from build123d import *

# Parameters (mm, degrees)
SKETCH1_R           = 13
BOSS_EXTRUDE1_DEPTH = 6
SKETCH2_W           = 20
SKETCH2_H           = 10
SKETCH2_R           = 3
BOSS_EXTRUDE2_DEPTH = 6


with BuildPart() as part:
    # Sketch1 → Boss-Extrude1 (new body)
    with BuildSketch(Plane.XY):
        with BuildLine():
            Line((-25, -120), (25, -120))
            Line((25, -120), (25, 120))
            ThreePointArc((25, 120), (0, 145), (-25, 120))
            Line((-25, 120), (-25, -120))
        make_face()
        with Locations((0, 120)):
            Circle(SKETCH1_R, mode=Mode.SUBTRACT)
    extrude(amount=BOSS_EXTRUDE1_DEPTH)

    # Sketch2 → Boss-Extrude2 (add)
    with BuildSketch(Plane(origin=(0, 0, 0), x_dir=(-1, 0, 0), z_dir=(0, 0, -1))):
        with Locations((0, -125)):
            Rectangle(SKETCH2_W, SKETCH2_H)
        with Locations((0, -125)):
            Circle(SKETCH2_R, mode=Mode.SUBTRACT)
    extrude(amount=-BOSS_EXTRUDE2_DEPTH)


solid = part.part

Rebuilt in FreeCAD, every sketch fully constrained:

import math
import FreeCAD as App
import Part
import Sketcher
Q = App.Units.Quantity

doc = App.newDocument("Part")
body = doc.addObject("PartDesign::Body", "Body")

sketch1 = doc.addObject("Sketcher::SketchObject", "Sketch")
body.addObject(sketch1)
sketch1.AttachmentSupport = (doc.XY_Plane, [""])
sketch1.MapMode = "FlatFace"
sketch1.addGeometry([
    Part.LineSegment(App.Vector(-25, -120, 0), App.Vector(25, -120, 0)),
    Part.LineSegment(App.Vector(25, -120, 0), App.Vector(25, 120, 0)),
    Part.ArcOfCircle(Part.Circle(App.Vector(0, 120, 0), App.Vector(0, 0, 1), 25), math.radians(0), math.radians(180)),
    Part.LineSegment(App.Vector(-25, 120, 0), App.Vector(-25, -120, 0)),
    Part.Circle(App.Vector(0, 120, 0), App.Vector(0, 0, 1), 13),
], False)
sketch1.addConstraint([
    Sketcher.Constraint("Coincident", 0, 2, 1, 1),
    Sketcher.Constraint("Tangent", 1, 2, 2, 1),
    Sketcher.Constraint("Tangent", 2, 2, 3, 1),
    Sketcher.Constraint("Coincident", 3, 2, 0, 1),
    Sketcher.Constraint("Horizontal", 0),
    Sketcher.Constraint("Vertical", 1),
    Sketcher.Constraint("Vertical", 3),
    Sketcher.Constraint("Coincident", 4, 3, 2, 3),
    Sketcher.Constraint("Symmetric", 0, 2, 2, 2, -1, 1),
    Sketcher.Constraint("Diameter", 4, Q("26 mm")),
    Sketcher.Constraint("Radius", 2, Q("25 mm")),
    Sketcher.Constraint("DistanceY", 1, 1, 1, 2, Q("240 mm")),
])
pad1 = doc.addObject("PartDesign::Pad", "Pad")
body.addObject(pad1)
pad1.Profile = sketch1
pad1.Length = 6

sketch2 = doc.addObject("Sketcher::SketchObject", "Sketch001")
body.addObject(sketch2)
sketch2.AttachmentSupport = (doc.XY_Plane, [""])
sketch2.MapMode = "FlatFace"
sketch2.addGeometry([
    Part.LineSegment(App.Vector(10, -120, 0), App.Vector(10, -130, 0)),
    Part.LineSegment(App.Vector(10, -130, 0), App.Vector(-10, -130, 0)),
    Part.LineSegment(App.Vector(-10, -130, 0), App.Vector(-10, -120, 0)),
    Part.LineSegment(App.Vector(-10, -120, 0), App.Vector(10, -120, 0)),
    Part.Circle(App.Vector(0, -125, 0), App.Vector(0, 0, 1), 3),
], False)
sketch2.addConstraint([
    Sketcher.Constraint("Coincident", 0, 2, 1, 1),
    Sketcher.Constraint("Coincident", 1, 2, 2, 1),
    Sketcher.Constraint("Coincident", 2, 2, 3, 1),
    Sketcher.Constraint("Coincident", 3, 2, 0, 1),
    Sketcher.Constraint("Vertical", 0),
    Sketcher.Constraint("Horizontal", 1),
    Sketcher.Constraint("Vertical", 2),
    Sketcher.Constraint("Horizontal", 3),
    Sketcher.Constraint("PointOnObject", 4, 3, -2),
    Sketcher.Constraint("Diameter", 4, Q("6 mm")),
    Sketcher.Constraint("DistanceX", 1, 2, 1, 1, Q("20 mm")),
    Sketcher.Constraint("DistanceY", 0, 2, 0, 1, Q("10 mm")),
    Sketcher.Constraint("DistanceY", 4, 3, -1, 1, Q("125 mm")),
    Sketcher.Constraint("DistanceX", -1, 1, 0, 2, Q("10 mm")),
    Sketcher.Constraint("DistanceY", 0, 2, -1, 1, Q("130 mm")),
])
pad2 = doc.addObject("PartDesign::Pad", "Pad001")
body.addObject(pad2)
pad2.Profile = sketch2
pad2.Length = 6

doc.recompute()
